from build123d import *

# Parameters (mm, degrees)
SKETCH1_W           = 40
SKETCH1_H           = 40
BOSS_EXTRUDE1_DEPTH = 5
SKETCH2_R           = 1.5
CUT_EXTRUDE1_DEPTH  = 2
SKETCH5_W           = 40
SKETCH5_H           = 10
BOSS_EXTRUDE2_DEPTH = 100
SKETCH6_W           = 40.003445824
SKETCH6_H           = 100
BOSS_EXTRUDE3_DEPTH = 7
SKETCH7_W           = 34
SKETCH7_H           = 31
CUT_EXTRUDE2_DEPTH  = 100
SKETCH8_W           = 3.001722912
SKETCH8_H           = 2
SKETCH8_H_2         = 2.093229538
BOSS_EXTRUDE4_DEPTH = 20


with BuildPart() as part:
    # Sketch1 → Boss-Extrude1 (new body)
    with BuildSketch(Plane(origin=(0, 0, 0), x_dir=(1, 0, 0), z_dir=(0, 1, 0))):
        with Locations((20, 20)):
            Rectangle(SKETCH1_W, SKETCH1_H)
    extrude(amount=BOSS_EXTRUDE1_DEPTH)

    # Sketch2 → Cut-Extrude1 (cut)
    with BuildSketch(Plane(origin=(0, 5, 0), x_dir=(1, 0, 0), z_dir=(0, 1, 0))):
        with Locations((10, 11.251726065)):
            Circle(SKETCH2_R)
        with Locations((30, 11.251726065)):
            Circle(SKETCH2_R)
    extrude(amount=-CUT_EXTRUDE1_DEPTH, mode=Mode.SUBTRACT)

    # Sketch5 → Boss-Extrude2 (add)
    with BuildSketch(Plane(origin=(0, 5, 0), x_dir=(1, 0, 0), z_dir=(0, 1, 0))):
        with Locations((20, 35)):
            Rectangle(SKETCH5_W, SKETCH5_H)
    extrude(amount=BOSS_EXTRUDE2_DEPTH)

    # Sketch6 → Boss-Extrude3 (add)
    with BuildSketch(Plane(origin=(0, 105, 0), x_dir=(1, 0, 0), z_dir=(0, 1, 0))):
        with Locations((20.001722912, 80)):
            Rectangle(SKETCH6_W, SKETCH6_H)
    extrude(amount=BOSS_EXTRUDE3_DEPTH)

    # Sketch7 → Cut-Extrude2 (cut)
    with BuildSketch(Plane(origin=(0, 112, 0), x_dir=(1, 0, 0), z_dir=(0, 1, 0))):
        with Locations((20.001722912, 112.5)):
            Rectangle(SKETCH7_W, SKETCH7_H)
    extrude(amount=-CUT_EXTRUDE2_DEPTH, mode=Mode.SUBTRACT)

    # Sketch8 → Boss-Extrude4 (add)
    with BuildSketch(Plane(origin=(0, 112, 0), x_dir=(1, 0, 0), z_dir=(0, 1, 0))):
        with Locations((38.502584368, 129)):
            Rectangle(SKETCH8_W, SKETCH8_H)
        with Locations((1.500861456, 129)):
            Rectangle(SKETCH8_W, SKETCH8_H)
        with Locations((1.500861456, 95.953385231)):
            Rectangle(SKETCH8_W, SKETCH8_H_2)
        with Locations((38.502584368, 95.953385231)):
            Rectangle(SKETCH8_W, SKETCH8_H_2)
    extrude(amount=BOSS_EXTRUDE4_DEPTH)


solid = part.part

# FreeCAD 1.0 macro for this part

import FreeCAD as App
import Part
import Sketcher
Q = App.Units.Quantity

doc = App.newDocument("Part")
params = doc.addObject("Spreadsheet::Sheet", "Params")
for row, (alias, value) in enumerate([
    ("sketch1_width", "40 mm"),
    ("pad1_length", "5 mm"),
    ("sketch2_diameter", "3 mm"),
    ("pocket1_length", "2 mm"),
    ("sketch3_width", "40 mm"),
    ("sketch3_height", "10 mm"),
    ("pad2_length", "100 mm"),
    ("sketch4_height", "100 mm"),
    ("pad3_length", "7 mm"),
    ("sketch5_width", "34 mm"),
    ("sketch5_height", "31 mm"),
    ("pocket2_length", "100 mm"),
    ("sketch6_height", "2 mm"),
    ("pad4_length", "20 mm"),
], start=1):
    params.set(f"A{row}", alias)
    params.set(f"B{row}", "=" + value)
    params.setAlias(f"B{row}", alias)

body = doc.addObject("PartDesign::Body", "Body")

sketch1 = body.newObject("Sketcher::SketchObject", "Sketch")
sketch1.AttachmentSupport = (doc.getObject("XZ_Plane"), [""])
sketch1.MapMode = "FlatFace"
sketch1.addGeometry(Part.LineSegment(App.Vector(0, -40, 0), App.Vector(0, 0, 0)), False)
sketch1.addGeometry(Part.LineSegment(App.Vector(0, 0, 0), App.Vector(40, 0, 0)), False)
sketch1.addGeometry(Part.LineSegment(App.Vector(40, 0, 0), App.Vector(40, -40, 0)), False)
sketch1.addGeometry(Part.LineSegment(App.Vector(40, -40, 0), App.Vector(0, -40, 0)), False)
sketch1.addConstraint(Sketcher.Constraint("Coincident", 0, 2, 1, 1))
sketch1.addConstraint(Sketcher.Constraint("Coincident", 1, 2, 2, 1))
sketch1.addConstraint(Sketcher.Constraint("Coincident", 2, 2, 3, 1))
sketch1.addConstraint(Sketcher.Constraint("Coincident", 3, 2, 0, 1))
sketch1.addConstraint(Sketcher.Constraint("Vertical", 0))
sketch1.addConstraint(Sketcher.Constraint("Horizontal", 1))
sketch1.addConstraint(Sketcher.Constraint("Vertical", 2))
sketch1.addConstraint(Sketcher.Constraint("Horizontal", 3))
sketch1.addConstraint(Sketcher.Constraint("Coincident", 0, 2, -1, 1))
sketch1.addConstraint(Sketcher.Constraint("Equal", 3, 0))
sketch1.addConstraint(Sketcher.Constraint("DistanceX", 1, 1, 1, 2, Q("40 mm")))
sketch1.setExpression("Constraints[10]", "Params.sketch1_width")
pad1 = body.newObject("PartDesign::Pad", "Pad")
pad1.Profile = sketch1
pad1.setExpression("Length", "Params.pad1_length")
pad1.Reversed = True

sketch2 = body.newObject("Sketcher::SketchObject", "Sketch001")
sketch2.AttachmentSupport = (doc.getObject("XZ_Plane"), [""])
sketch2.MapMode = "FlatFace"
sketch2.AttachmentOffset = App.Placement(App.Vector(0, 0, -5), App.Rotation())
sketch2.addGeometry(Part.Circle(App.Vector(10, -11.3, 0), App.Vector(0, 0, 1), 1.5), False)
sketch2.addGeometry(Part.Circle(App.Vector(30, -11.3, 0), App.Vector(0, 0, 1), 1.5), False)
sketch2.addConstraint(Sketcher.Constraint("Equal", 0, 1))
sketch2.addConstraint(Sketcher.Constraint("Horizontal", 0, 3, 1, 3))
sketch2.addConstraint(Sketcher.Constraint("Diameter", 0, Q("3 mm")))
sketch2.addConstraint(Sketcher.Constraint("DistanceX", -1, 1, 0, 3, Q("10 mm")))
sketch2.addConstraint(Sketcher.Constraint("DistanceX", -1, 1, 1, 3, Q("30 mm")))
sketch2.addConstraint(Sketcher.Constraint("DistanceY", 0, 3, -1, 1, Q("11.251726 mm")))
sketch2.setExpression("Constraints[2]", "Params.sketch2_diameter")
pocket1 = body.newObject("PartDesign::Pocket", "Pocket")
pocket1.Profile = sketch2
pocket1.setExpression("Length", "Params.pocket1_length")
pocket1.Reversed = True

sketch3 = body.newObject("Sketcher::SketchObject", "Sketch002")
sketch3.AttachmentSupport = (doc.getObject("XZ_Plane"), [""])
sketch3.MapMode = "FlatFace"
sketch3.AttachmentOffset = App.Placement(App.Vector(0, 0, -5), App.Rotation())
sketch3.addGeometry(Part.LineSegment(App.Vector(0, -40, 0), App.Vector(0, -30, 0)), False)
sketch3.addGeometry(Part.LineSegment(App.Vector(0, -30, 0), App.Vector(40, -30, 0)), False)
sketch3.addGeometry(Part.LineSegment(App.Vector(40, -30, 0), App.Vector(40, -40, 0)), False)
sketch3.addGeometry(Part.LineSegment(App.Vector(40, -40, 0), App.Vector(0, -40, 0)), False)
sketch3.addConstraint(Sketcher.Constraint("Coincident", 0, 2, 1, 1))
sketch3.addConstraint(Sketcher.Constraint("Coincident", 1, 2, 2, 1))
sketch3.addConstraint(Sketcher.Constraint("Coincident", 2, 2, 3, 1))
sketch3.addConstraint(Sketcher.Constraint("Coincident", 3, 2, 0, 1))
sketch3.addConstraint(Sketcher.Constraint("Vertical", 0))
sketch3.addConstraint(Sketcher.Constraint("Horizontal", 1))
sketch3.addConstraint(Sketcher.Constraint("Vertical", 2))
sketch3.addConstraint(Sketcher.Constraint("Horizontal", 3))
sketch3.addConstraint(Sketcher.Constraint("PointOnObject", 0, 2, -2))
sketch3.addConstraint(Sketcher.Constraint("DistanceX", 1, 1, 1, 2, Q("40 mm")))
sketch3.addConstraint(Sketcher.Constraint("DistanceY", 0, 1, 0, 2, Q("10 mm")))
sketch3.addConstraint(Sketcher.Constraint("DistanceY", 0, 2, -1, 1, Q("30 mm")))
sketch3.setExpression("Constraints[9]", "Params.sketch3_width")
sketch3.setExpression("Constraints[10]", "Params.sketch3_height")
pad2 = body.newObject("PartDesign::Pad", "Pad001")
pad2.Profile = sketch3
pad2.setExpression("Length", "Params.pad2_length")
pad2.Reversed = True

sketch4 = body.newObject("Sketcher::SketchObject", "Sketch003")
sketch4.AttachmentSupport = (doc.getObject("XZ_Plane"), [""])
sketch4.MapMode = "FlatFace"
sketch4.AttachmentOffset = App.Placement(App.Vector(0, 0, -105), App.Rotation())
sketch4.addGeometry(Part.LineSegment(App.Vector(0, -130, 0), App.Vector(0, -30, 0)), False)
sketch4.addGeometry(Part.LineSegment(App.Vector(0, -30, 0), App.Vector(40, -30, 0)), False)
sketch4.addGeometry(Part.LineSegment(App.Vector(40, -30, 0), App.Vector(40, -130, 0)), False)
sketch4.addGeometry(Part.LineSegment(App.Vector(40, -130, 0), App.Vector(0, -130, 0)), False)
sketch4.addConstraint(Sketcher.Constraint("Coincident", 0, 2, 1, 1))
sketch4.addConstraint(Sketcher.Constraint("Coincident", 1, 2, 2, 1))
sketch4.addConstraint(Sketcher.Constraint("Coincident", 2, 2, 3, 1))
sketch4.addConstraint(Sketcher.Constraint("Coincident", 3, 2, 0, 1))
sketch4.addConstraint(Sketcher.Constraint("Vertical", 0))
sketch4.addConstraint(Sketcher.Constraint("Horizontal", 1))
sketch4.addConstraint(Sketcher.Constraint("Vertical", 2))
sketch4.addConstraint(Sketcher.Constraint("Horizontal", 3))
sketch4.addConstraint(Sketcher.Constraint("PointOnObject", 0, 2, -2))
sketch4.addConstraint(Sketcher.Constraint("DistanceY", 0, 1, 0, 2, Q("100 mm")))
sketch4.addConstraint(Sketcher.Constraint("DistanceY", 0, 2, -1, 1, Q("30 mm")))
sketch4.addConstraint(Sketcher.Constraint("DistanceX", 1, 1, 1, 2, Q("40.003446 mm")))
sketch4.setExpression("Constraints[9]", "Params.sketch4_height")
pad3 = body.newObject("PartDesign::Pad", "Pad002")
pad3.Profile = sketch4
pad3.setExpression("Length", "Params.pad3_length")
pad3.Reversed = True

sketch5 = body.newObject("Sketcher::SketchObject", "Sketch004")
sketch5.AttachmentSupport = (doc.getObject("XZ_Plane"), [""])
sketch5.MapMode = "FlatFace"
sketch5.AttachmentOffset = App.Placement(App.Vector(0, 0, -112), App.Rotation())
sketch5.addGeometry(Part.LineSegment(App.Vector(3, -128, 0), App.Vector(3, -97, 0)), False)
sketch5.addGeometry(Part.LineSegment(App.Vector(3, -97, 0), App.Vector(37, -97, 0)), False)
sketch5.addGeometry(Part.LineSegment(App.Vector(37, -97, 0), App.Vector(37, -128, 0)), False)
sketch5.addGeometry(Part.LineSegment(App.Vector(37, -128, 0), App.Vector(3, -128, 0)), False)
sketch5.addConstraint(Sketcher.Constraint("Coincident", 0, 2, 1, 1))
sketch5.addConstraint(Sketcher.Constraint("Coincident", 1, 2, 2, 1))
sketch5.addConstraint(Sketcher.Constraint("Coincident", 2, 2, 3, 1))
sketch5.addConstraint(Sketcher.Constraint("Coincident", 3, 2, 0, 1))
sketch5.addConstraint(Sketcher.Constraint("Vertical", 0))
sketch5.addConstraint(Sketcher.Constraint("Horizontal", 1))
sketch5.addConstraint(Sketcher.Constraint("Vertical", 2))
sketch5.addConstraint(Sketcher.Constraint("Horizontal", 3))
sketch5.addConstraint(Sketcher.Constraint("DistanceX", 1, 1, 1, 2, Q("34 mm")))
sketch5.addConstraint(Sketcher.Constraint("DistanceY", 0, 1, 0, 2, Q("31 mm")))
sketch5.addConstraint(Sketcher.Constraint("DistanceY", 0, 2, -1, 1, Q("97 mm")))
sketch5.addConstraint(Sketcher.Constraint("DistanceX", -1, 1, 0, 2, Q("3.001723 mm")))
sketch5.setExpression("Constraints[8]", "Params.sketch5_width")
sketch5.setExpression("Constraints[9]", "Params.sketch5_height")
pocket2 = body.newObject("PartDesign::Pocket", "Pocket001")
pocket2.Profile = sketch5
pocket2.setExpression("Length", "Params.pocket2_length")
pocket2.Reversed = True

sketch6 = body.newObject("Sketcher::SketchObject", "Sketch005")
sketch6.AttachmentSupport = (doc.getObject("XZ_Plane"), [""])
sketch6.MapMode = "FlatFace"
sketch6.AttachmentOffset = App.Placement(App.Vector(0, 0, -112), App.Rotation())
sketch6.addGeometry(Part.LineSegment(App.Vector(37, -130, 0), App.Vector(37, -128, 0)), False)
sketch6.addGeometry(Part.LineSegment(App.Vector(37, -128, 0), App.Vector(40, -128, 0)), False)
sketch6.addGeometry(Part.LineSegment(App.Vector(40, -128, 0), App.Vector(40, -130, 0)), False)
sketch6.addGeometry(Part.LineSegment(App.Vector(40, -130, 0), App.Vector(37, -130, 0)), False)
sketch6.addGeometry(Part.LineSegment(App.Vector(0, -130, 0), App.Vector(0, -128, 0)), False)
sketch6.addGeometry(Part.LineSegment(App.Vector(0, -128, 0), App.Vector(3, -128, 0)), False)
sketch6.addGeometry(Part.LineSegment(App.Vector(3, -128, 0), App.Vector(3, -130, 0)), False)
sketch6.addGeometry(Part.LineSegment(App.Vector(3, -130, 0), App.Vector(0, -130, 0)), False)
sketch6.addGeometry(Part.LineSegment(App.Vector(0, -97, 0), App.Vector(0, -94.9, 0)), False)
sketch6.addGeometry(Part.LineSegment(App.Vector(0, -94.9, 0), App.Vector(3, -94.9, 0)), False)
sketch6.addGeometry(Part.LineSegment(App.Vector(3, -94.9, 0), App.Vector(3, -97, 0)), False)
sketch6.addGeometry(Part.LineSegment(App.Vector(3, -97, 0), App.Vector(0, -97, 0)), False)
sketch6.addGeometry(Part.LineSegment(App.Vector(37, -97, 0), App.Vector(37, -94.9, 0)), False)
sketch6.addGeometry(Part.LineSegment(App.Vector(37, -94.9, 0), App.Vector(40, -94.9, 0)), False)
sketch6.addGeometry(Part.LineSegment(App.Vector(40, -94.9, 0), App.Vector(40, -97, 0)), False)
sketch6.addGeometry(Part.LineSegment(App.Vector(40, -97, 0), App.Vector(37, -97, 0)), False)
sketch6.addConstraint(Sketcher.Constraint("Coincident", 0, 2, 1, 1))
sketch6.addConstraint(Sketcher.Constraint("Coincident", 1, 2, 2, 1))
sketch6.addConstraint(Sketcher.Constraint("Coincident", 2, 2, 3, 1))
sketch6.addConstraint(Sketcher.Constraint("Coincident", 3, 2, 0, 1))
sketch6.addConstraint(Sketcher.Constraint("Coincident", 4, 2, 5, 1))
sketch6.addConstraint(Sketcher.Constraint("Coincident", 5, 2, 6, 1))
sketch6.addConstraint(Sketcher.Constraint("Coincident", 6, 2, 7, 1))
sketch6.addConstraint(Sketcher.Constraint("Coincident", 7, 2, 4, 1))
sketch6.addConstraint(Sketcher.Constraint("Coincident", 8, 2, 9, 1))
sketch6.addConstraint(Sketcher.Constraint("Coincident", 9, 2, 10, 1))
sketch6.addConstraint(Sketcher.Constraint("Coincident", 10, 2, 11, 1))
sketch6.addConstraint(Sketcher.Constraint("Coincident", 11, 2, 8, 1))
sketch6.addConstraint(Sketcher.Constraint("Coincident", 12, 2, 13, 1))
sketch6.addConstraint(Sketcher.Constraint("Coincident", 13, 2, 14, 1))
sketch6.addConstraint(Sketcher.Constraint("Coincident", 14, 2, 15, 1))
sketch6.addConstraint(Sketcher.Constraint("Coincident", 15, 2, 12, 1))
sketch6.addConstraint(Sketcher.Constraint("Vertical", 0))
sketch6.addConstraint(Sketcher.Constraint("Horizontal", 1))
sketch6.addConstraint(Sketcher.Constraint("Vertical", 2))
sketch6.addConstraint(Sketcher.Constraint("Horizontal", 3))
sketch6.addConstraint(Sketcher.Constraint("Vertical", 4))
sketch6.addConstraint(Sketcher.Constraint("Horizontal", 5))
sketch6.addConstraint(Sketcher.Constraint("Vertical", 6))
sketch6.addConstraint(Sketcher.Constraint("Horizontal", 7))
sketch6.addConstraint(Sketcher.Constraint("Vertical", 8))
sketch6.addConstraint(Sketcher.Constraint("Horizontal", 9))
sketch6.addConstraint(Sketcher.Constraint("Vertical", 10))
sketch6.addConstraint(Sketcher.Constraint("Horizontal", 11))
sketch6.addConstraint(Sketcher.Constraint("Vertical", 12))
sketch6.addConstraint(Sketcher.Constraint("Horizontal", 13))
sketch6.addConstraint(Sketcher.Constraint("Vertical", 14))
sketch6.addConstraint(Sketcher.Constraint("Horizontal", 15))
sketch6.addConstraint(Sketcher.Constraint("PointOnObject", 4, 2, -2))
sketch6.addConstraint(Sketcher.Constraint("PointOnObject", 8, 2, -2))
sketch6.addConstraint(Sketcher.Constraint("Horizontal", 1, 2, 4, 2))
sketch6.addConstraint(Sketcher.Constraint("Horizontal", 3, 2, 6, 2))
sketch6.addConstraint(Sketcher.Constraint("Horizontal", 9, 2, 12, 2))
sketch6.addConstraint(Sketcher.Constraint("Horizontal", 11, 2, 14, 2))
sketch6.addConstraint(Sketcher.Constraint("Vertical", 6, 2, 9, 2))
sketch6.addConstraint(Sketcher.Constraint("Vertical", 3, 2, 12, 2))
sketch6.addConstraint(Sketcher.Constraint("Vertical", 2, 2, 13, 2))
sketch6.addConstraint(Sketcher.Constraint("Equal", 3, 5))
sketch6.addConstraint(Sketcher.Constraint("DistanceY", 0, 1, 0, 2, Q("2 mm")))
sketch6.addConstraint(Sketcher.Constraint("DistanceY", 0, 2, -1, 1, Q("128 mm")))
sketch6.addConstraint(Sketcher.Constraint("DistanceY", 10, 2, -1, 1, Q("97 mm")))
sketch6.addConstraint(Sketcher.Constraint("DistanceX", 5, 2, 0, 2, Q("34 mm")))
sketch6.addConstraint(Sketcher.Constraint("DistanceY", 8, 1, 8, 2, Q("2.09323 mm")))
sketch6.addConstraint(Sketcher.Constraint("DistanceX", 1, 1, 1, 2, Q("3.001723 mm")))
sketch6.setExpression("Constraints[42]", "Params.sketch6_height")
pad4 = body.newObject("PartDesign::Pad", "Pad003")
pad4.Profile = sketch6
pad4.setExpression("Length", "Params.pad4_length")
pad4.Reversed = True

doc.recompute()
